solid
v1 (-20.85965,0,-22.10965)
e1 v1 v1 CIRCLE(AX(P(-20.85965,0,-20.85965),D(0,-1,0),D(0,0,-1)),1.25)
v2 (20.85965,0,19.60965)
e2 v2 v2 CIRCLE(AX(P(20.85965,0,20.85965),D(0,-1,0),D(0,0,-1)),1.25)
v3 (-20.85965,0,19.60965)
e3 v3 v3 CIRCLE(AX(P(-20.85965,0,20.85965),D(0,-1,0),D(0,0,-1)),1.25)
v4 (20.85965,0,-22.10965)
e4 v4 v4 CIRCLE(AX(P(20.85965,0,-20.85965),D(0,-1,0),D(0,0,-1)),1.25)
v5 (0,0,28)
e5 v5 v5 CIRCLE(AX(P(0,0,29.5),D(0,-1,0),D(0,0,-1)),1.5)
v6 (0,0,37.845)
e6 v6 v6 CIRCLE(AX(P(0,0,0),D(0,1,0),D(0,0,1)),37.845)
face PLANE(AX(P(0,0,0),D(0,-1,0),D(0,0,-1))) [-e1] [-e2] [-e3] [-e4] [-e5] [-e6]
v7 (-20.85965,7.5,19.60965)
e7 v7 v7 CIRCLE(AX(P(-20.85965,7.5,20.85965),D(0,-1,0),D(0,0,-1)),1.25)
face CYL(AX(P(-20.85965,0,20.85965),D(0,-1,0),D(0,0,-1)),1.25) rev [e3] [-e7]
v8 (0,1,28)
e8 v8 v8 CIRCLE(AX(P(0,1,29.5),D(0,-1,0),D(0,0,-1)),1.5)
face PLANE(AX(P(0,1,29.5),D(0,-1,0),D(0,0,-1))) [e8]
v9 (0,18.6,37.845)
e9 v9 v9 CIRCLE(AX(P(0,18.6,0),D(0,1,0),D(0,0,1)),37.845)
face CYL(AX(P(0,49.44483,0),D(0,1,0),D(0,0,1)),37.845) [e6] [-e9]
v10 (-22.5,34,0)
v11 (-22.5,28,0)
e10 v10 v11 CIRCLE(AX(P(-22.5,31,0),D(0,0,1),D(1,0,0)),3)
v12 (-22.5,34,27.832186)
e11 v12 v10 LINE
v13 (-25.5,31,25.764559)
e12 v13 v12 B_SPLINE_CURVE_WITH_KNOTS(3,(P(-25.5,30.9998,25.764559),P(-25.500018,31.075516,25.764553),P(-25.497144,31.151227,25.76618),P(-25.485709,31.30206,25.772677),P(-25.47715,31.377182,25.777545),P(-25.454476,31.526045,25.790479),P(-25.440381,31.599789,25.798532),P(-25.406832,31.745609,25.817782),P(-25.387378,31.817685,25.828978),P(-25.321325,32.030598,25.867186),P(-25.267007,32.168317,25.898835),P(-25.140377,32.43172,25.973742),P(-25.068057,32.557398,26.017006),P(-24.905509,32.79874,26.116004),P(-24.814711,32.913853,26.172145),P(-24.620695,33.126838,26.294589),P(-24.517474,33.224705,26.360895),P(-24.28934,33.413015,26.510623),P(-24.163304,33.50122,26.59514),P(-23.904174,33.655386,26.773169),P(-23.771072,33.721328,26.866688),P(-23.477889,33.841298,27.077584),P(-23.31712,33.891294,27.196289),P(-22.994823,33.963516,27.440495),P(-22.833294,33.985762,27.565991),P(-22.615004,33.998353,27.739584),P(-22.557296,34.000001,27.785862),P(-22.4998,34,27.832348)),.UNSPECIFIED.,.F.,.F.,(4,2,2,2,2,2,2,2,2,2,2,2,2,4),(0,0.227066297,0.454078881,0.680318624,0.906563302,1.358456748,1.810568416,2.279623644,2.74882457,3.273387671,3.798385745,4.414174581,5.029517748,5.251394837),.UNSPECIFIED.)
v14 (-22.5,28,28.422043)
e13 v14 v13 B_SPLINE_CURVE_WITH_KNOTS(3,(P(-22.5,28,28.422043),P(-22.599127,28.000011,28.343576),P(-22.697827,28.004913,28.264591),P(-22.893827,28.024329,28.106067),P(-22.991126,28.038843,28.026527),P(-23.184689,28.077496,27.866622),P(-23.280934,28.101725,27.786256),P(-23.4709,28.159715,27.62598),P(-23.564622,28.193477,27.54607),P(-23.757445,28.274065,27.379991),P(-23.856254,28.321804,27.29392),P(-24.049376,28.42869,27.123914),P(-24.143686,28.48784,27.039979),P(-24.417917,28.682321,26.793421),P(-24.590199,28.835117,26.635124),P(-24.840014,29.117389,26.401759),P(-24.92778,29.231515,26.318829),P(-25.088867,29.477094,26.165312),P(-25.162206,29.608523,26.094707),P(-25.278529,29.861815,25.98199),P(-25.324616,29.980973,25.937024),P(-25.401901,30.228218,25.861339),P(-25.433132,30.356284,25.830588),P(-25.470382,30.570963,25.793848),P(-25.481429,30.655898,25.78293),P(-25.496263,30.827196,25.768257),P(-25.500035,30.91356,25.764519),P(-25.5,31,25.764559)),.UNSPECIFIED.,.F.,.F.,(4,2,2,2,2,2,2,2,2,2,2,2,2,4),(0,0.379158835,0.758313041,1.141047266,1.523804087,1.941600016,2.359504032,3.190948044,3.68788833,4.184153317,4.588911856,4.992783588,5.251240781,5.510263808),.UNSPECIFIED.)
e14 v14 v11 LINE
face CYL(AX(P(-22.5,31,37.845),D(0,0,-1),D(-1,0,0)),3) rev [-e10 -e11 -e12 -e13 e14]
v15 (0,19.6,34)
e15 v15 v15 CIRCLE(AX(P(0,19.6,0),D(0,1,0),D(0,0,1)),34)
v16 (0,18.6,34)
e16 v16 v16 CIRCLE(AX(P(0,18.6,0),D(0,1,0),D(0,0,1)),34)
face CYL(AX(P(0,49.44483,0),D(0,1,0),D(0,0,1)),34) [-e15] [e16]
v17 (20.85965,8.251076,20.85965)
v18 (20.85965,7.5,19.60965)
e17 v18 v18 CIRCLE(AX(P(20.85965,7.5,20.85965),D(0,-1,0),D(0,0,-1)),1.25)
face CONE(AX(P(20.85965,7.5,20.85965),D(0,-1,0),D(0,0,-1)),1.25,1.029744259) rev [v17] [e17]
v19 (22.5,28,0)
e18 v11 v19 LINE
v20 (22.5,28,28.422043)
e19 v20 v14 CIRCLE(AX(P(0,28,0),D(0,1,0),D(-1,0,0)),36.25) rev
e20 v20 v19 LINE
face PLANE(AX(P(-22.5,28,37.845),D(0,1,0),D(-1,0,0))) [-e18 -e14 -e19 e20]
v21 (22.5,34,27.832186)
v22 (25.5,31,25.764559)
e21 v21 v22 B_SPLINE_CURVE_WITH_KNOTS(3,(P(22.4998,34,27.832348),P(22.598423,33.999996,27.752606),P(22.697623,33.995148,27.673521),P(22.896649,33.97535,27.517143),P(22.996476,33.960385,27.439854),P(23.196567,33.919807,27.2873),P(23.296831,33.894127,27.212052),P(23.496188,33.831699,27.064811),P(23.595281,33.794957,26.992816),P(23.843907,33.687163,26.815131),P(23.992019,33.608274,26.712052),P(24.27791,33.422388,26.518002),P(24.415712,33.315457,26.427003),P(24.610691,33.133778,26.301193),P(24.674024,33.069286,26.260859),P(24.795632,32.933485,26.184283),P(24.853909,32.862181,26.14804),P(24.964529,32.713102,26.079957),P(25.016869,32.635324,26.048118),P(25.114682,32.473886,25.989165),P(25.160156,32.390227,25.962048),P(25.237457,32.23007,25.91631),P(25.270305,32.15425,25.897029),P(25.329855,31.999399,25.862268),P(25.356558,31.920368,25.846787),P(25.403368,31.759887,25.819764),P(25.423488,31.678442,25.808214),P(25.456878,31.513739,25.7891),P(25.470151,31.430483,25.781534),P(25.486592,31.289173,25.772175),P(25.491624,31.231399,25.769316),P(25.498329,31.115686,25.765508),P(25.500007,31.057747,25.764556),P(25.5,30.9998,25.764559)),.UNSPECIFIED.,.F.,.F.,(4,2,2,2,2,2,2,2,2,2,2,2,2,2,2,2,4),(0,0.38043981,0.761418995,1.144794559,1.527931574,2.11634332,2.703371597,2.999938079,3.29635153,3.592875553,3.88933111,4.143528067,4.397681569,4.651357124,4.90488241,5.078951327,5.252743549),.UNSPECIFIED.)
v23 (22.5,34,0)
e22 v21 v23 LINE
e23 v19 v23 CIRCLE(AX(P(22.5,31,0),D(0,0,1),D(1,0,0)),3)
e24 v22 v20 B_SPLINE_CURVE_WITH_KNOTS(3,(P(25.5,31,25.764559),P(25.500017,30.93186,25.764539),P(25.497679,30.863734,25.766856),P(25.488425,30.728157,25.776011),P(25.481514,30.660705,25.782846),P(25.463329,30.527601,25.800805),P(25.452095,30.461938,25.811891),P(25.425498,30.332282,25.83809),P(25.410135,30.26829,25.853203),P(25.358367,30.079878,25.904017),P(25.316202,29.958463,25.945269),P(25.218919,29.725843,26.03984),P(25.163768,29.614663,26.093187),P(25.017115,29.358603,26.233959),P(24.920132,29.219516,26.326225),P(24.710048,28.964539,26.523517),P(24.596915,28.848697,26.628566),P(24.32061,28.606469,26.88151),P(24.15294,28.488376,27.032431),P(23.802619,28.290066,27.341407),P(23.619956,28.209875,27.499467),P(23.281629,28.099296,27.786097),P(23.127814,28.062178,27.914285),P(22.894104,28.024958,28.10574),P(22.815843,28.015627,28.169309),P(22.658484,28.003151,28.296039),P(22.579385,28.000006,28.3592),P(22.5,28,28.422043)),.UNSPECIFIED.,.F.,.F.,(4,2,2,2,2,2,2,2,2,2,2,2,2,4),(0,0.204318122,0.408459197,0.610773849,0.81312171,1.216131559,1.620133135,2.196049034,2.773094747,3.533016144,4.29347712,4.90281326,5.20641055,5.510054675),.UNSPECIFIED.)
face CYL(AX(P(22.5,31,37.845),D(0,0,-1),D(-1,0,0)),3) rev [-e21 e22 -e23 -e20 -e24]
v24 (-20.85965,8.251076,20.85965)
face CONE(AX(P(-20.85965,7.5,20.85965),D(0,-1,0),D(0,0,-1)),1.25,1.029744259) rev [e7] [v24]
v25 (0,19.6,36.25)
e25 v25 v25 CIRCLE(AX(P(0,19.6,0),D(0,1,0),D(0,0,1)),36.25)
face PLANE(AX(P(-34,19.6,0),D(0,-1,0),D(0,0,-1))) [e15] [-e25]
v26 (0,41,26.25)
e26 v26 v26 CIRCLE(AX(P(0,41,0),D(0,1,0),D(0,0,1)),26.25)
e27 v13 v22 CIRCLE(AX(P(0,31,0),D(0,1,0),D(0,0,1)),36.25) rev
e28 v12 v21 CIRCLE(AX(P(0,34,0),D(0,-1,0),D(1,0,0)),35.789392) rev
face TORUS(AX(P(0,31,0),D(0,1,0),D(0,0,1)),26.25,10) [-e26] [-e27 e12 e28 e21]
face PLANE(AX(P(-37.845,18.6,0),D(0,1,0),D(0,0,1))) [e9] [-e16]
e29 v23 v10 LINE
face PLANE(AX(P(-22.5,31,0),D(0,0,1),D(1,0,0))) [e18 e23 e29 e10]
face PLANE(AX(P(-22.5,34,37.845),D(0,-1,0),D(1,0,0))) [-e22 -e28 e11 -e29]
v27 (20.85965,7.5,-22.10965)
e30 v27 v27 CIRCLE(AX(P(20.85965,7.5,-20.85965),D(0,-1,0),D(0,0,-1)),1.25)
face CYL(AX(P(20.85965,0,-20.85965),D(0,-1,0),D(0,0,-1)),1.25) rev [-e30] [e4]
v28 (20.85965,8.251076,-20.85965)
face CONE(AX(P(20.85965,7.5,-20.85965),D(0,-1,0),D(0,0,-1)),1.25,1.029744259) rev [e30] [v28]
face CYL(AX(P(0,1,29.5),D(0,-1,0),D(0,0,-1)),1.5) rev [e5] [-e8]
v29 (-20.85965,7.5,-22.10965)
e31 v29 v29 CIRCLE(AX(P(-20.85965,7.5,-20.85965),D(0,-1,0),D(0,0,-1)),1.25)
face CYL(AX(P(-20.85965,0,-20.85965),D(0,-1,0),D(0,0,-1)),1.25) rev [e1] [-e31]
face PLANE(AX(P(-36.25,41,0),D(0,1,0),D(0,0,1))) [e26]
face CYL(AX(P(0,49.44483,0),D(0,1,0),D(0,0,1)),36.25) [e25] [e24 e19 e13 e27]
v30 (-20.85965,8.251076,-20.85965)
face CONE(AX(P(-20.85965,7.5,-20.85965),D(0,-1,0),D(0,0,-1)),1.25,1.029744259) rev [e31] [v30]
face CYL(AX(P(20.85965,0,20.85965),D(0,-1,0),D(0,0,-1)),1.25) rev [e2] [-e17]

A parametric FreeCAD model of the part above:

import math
import FreeCAD as App
import Part
import Sketcher
Q = App.Units.Quantity


def edges_at(feature, points):
    """Names of the edges that pass closest to the given points."""
    edges = feature.Shape.Edges
    near = lambda p: min(range(len(edges)), key=lambda i: edges[i].distToShape(Part.Vertex(*p))[0])
    return sorted({f"Edge{near(p) + 1}" for p in points})

doc = App.newDocument("Part")
body = doc.addObject("PartDesign::Body", "Body")

sketch1 = body.newObject("Sketcher::SketchObject", "Sketch")
sketch1.AttachmentSupport = (doc.getObject("XY_Plane"), [""])
sketch1.MapMode = "FlatFace"
sketch1.addGeometry(Part.LineSegment(App.Vector(-37.8, 0, 0), App.Vector(0, 0, 0)), False)
sketch1.addGeometry(Part.LineSegment(App.Vector(0, 0, 0), App.Vector(0, 41, 0)), False)
sketch1.addGeometry(Part.LineSegment(App.Vector(0, 41, 0), App.Vector(-36.2, 41, 0)), False)
sketch1.addGeometry(Part.LineSegment(App.Vector(-36.2, 41, 0), App.Vector(-36.2, 19.6, 0)), False)
sketch1.addGeometry(Part.LineSegment(App.Vector(-36.2, 19.6, 0), App.Vector(-34, 19.6, 0)), False)
sketch1.addGeometry(Part.LineSegment(App.Vector(-34, 19.6, 0), App.Vector(-34, 18.6, 0)), False)
sketch1.addGeometry(Part.LineSegment(App.Vector(-34, 18.6, 0), App.Vector(-37.8, 18.6, 0)), False)
sketch1.addGeometry(Part.LineSegment(App.Vector(-37.8, 18.6, 0), App.Vector(-37.8, 0, 0)), False)
sketch1.addConstraint(Sketcher.Constraint("Coincident", 0, 2, 1, 1))
sketch1.addConstraint(Sketcher.Constraint("Coincident", 1, 2, 2, 1))
sketch1.addConstraint(Sketcher.Constraint("Coincident", 2, 2, 3, 1))
sketch1.addConstraint(Sketcher.Constraint("Coincident", 3, 2, 4, 1))
sketch1.addConstraint(Sketcher.Constraint("Coincident", 4, 2, 5, 1))
sketch1.addConstraint(Sketcher.Constraint("Coincident", 5, 2, 6, 1))
sketch1.addConstraint(Sketcher.Constraint("Coincident", 6, 2, 7, 1))
sketch1.addConstraint(Sketcher.Constraint("Coincident", 7, 2, 0, 1))
sketch1.addConstraint(Sketcher.Constraint("Horizontal", 0))
sketch1.addConstraint(Sketcher.Constraint("Vertical", 1))
sketch1.addConstraint(Sketcher.Constraint("Horizontal", 2))
sketch1.addConstraint(Sketcher.Constraint("Vertical", 3))
sketch1.addConstraint(Sketcher.Constraint("Horizontal", 4))
sketch1.addConstraint(Sketcher.Constraint("Vertical", 5))
sketch1.addConstraint(Sketcher.Constraint("Horizontal", 6))
sketch1.addConstraint(Sketcher.Constraint("Vertical", 7))
sketch1.addConstraint(Sketcher.Constraint("Coincident", 0, 2, -1, 1))
sketch1.addConstraint(Sketcher.Constraint("DistanceY", 1, 1, 1, 2, 41.0))
sketch1.addConstraint(Sketcher.Constraint("DistanceY", 5, 2, 5, 1, 1.0))
sketch1.addConstraint(Sketcher.Constraint("DistanceY", 3, 2, 3, 1, 21.4))
sketch1.addConstraint(Sketcher.Constraint("DistanceX", 4, 2, -1, 1, 34.0))
sketch1.addConstraint(Sketcher.Constraint("DistanceX", 2, 2, 2, 1, 36.25))
sketch1.addConstraint(Sketcher.Constraint("DistanceX", 0, 1, 0, 2, 37.845))
revolution = body.newObject("PartDesign::Revolution", "Revolution")
revolution.Profile = sketch1
revolution.ReferenceAxis = (sketch1, ["V_Axis"])
revolution.Angle = 360

sketch2 = body.newObject("Sketcher::SketchObject", "Sketch001")
sketch2.AttachmentSupport = (doc.getObject("XZ_Plane"), [""])
sketch2.MapMode = "FlatFace"
sketch2.addGeometry(Part.Circle(App.Vector(0, 29.5, 0), App.Vector(0, 0, 1), 1.5), False)
sketch2.addConstraint(Sketcher.Constraint("PointOnObject", 0, 3, -2))
sketch2.addConstraint(Sketcher.Constraint("Diameter", 0, 3.0))
sketch2.addConstraint(Sketcher.Constraint("DistanceY", -1, 1, 0, 3, 29.5))
pocket1 = body.newObject("PartDesign::Pocket", "Pocket")
pocket1.Profile = sketch2
pocket1.Length = 1

sketch3 = body.newObject("Sketcher::SketchObject", "Sketch002")
sketch3.AttachmentSupport = (doc.getObject("YZ_Plane"), [""])
sketch3.MapMode = "FlatFace"
sketch3.AttachmentOffset = App.Placement(App.Vector(0, 0, -20.85965), App.Rotation())
sketch3.addGeometry(Part.LineSegment(App.Vector(8.3, 20.9, 0), App.Vector(0, 20.9, 0)), False)
sketch3.addGeometry(Part.LineSegment(App.Vector(0, 20.9, 0), App.Vector(0, 19.6, 0)), False)
sketch3.addGeometry(Part.LineSegment(App.Vector(0, 19.6, 0), App.Vector(7.5, 19.6, 0)), False)
sketch3.addGeometry(Part.LineSegment(App.Vector(7.5, 19.6, 0), App.Vector(8.3, 20.9, 0)), False)
sketch3.addGeometry(Part.LineSegment(App.Vector(0, 20.9, 0), App.Vector(8.3, 20.9, 0)), True)
sketch3.addConstraint(Sketcher.Constraint("Coincident", 0, 2, 1, 1))
sketch3.addConstraint(Sketcher.Constraint("Coincident", 1, 2, 2, 1))
sketch3.addConstraint(Sketcher.Constraint("Coincident", 2, 2, 3, 1))
sketch3.addConstraint(Sketcher.Constraint("Coincident", 3, 2, 0, 1))
sketch3.addConstraint(Sketcher.Constraint("Horizontal", 0))
sketch3.addConstraint(Sketcher.Constraint("Vertical", 1))
sketch3.addConstraint(Sketcher.Constraint("Horizontal", 2))
sketch3.addConstraint(Sketcher.Constraint("Horizontal", 4))
sketch3.addConstraint(Sketcher.Constraint("Coincident", 4, 1, 0, 2))
sketch3.addConstraint(Sketcher.Constraint("PointOnObject", 0, 2, -2))
sketch3.addConstraint(Sketcher.Constraint("Equal", 0, 4))
sketch3.addConstraint(Sketcher.Constraint("Angle", 3, Q("59 deg")))
sketch3.addConstraint(Sketcher.Constraint("DistanceX", 2, 1, 2, 2, 7.5))
sketch3.addConstraint(Sketcher.Constraint("DistanceY", 1, 2, 1, 1, 1.25))
sketch3.addConstraint(Sketcher.Constraint("DistanceY", -1, 1, 0, 2, 20.85965))
groove = body.newObject("PartDesign::Groove", "Groove")
groove.Profile = sketch3
groove.ReferenceAxis = (sketch3, ["Axis0"])
groove.Angle = 360
doc.recompute()

polarpattern = body.newObject("PartDesign::PolarPattern", "PolarPattern")
polarpattern.Originals = [groove]
polarpattern.Axis = (doc.getObject("Y_Axis"), [""])
polarpattern.Angle = 360
polarpattern.Occurrences = 4
body.Tip = polarpattern
doc.recompute()

fillet = body.newObject("PartDesign::Fillet", "Fillet")
fillet.Base = (polarpattern, edges_at(polarpattern, [(0, 41, -36.25)]))
fillet.Radius = 10

sketch4 = body.newObject("Sketcher::SketchObject", "Sketch003")
sketch4.AttachmentSupport = (doc.getObject("XY_Plane"), [""])
sketch4.MapMode = "FlatFace"
sketch4.addGeometry(Part.LineSegment(App.Vector(22.5, 34, 0), App.Vector(-22.5, 34, 0)), False)
sketch4.addGeometry(Part.ArcOfCircle(Part.Circle(App.Vector(-22.5, 31, 0), App.Vector(0, 0, 1), 3), math.radians(90), math.radians(270)), False)
sketch4.addGeometry(Part.LineSegment(App.Vector(-22.5, 28, 0), App.Vector(22.5, 28, 0)), False)
sketch4.addGeometry(Part.ArcOfCircle(Part.Circle(App.Vector(22.5, 31, 0), App.Vector(0, 0, 1), 3), math.radians(-90), math.radians(90)), False)
sketch4.addConstraint(Sketcher.Constraint("Tangent", 0, 2, 1, 1))
sketch4.addConstraint(Sketcher.Constraint("Tangent", 1, 2, 2, 1))
sketch4.addConstraint(Sketcher.Constraint("Tangent", 2, 2, 3, 1))
sketch4.addConstraint(Sketcher.Constraint("Tangent", 3, 2, 0, 1))
sketch4.addConstraint(Sketcher.Constraint("Horizontal", 0))
sketch4.addConstraint(Sketcher.Constraint("Horizontal", 2))
sketch4.addConstraint(Sketcher.Constraint("Radius", 1, 3.0))
sketch4.addConstraint(Sketcher.Constraint("DistanceX", 0, 2, 0, 1, 45.0))
sketch4.addConstraint(Sketcher.Constraint("DistanceY", -1, 1, 1, 3, 31.0))
sketch4.addConstraint(Sketcher.Constraint("DistanceX", 1, 3, -1, 1, 22.5))
pocket2 = body.newObject("PartDesign::Pocket", "Pocket001")
pocket2.Profile = sketch4
pocket2.Type = "ThroughAll"
pocket2.Reversed = True

doc.recompute()
